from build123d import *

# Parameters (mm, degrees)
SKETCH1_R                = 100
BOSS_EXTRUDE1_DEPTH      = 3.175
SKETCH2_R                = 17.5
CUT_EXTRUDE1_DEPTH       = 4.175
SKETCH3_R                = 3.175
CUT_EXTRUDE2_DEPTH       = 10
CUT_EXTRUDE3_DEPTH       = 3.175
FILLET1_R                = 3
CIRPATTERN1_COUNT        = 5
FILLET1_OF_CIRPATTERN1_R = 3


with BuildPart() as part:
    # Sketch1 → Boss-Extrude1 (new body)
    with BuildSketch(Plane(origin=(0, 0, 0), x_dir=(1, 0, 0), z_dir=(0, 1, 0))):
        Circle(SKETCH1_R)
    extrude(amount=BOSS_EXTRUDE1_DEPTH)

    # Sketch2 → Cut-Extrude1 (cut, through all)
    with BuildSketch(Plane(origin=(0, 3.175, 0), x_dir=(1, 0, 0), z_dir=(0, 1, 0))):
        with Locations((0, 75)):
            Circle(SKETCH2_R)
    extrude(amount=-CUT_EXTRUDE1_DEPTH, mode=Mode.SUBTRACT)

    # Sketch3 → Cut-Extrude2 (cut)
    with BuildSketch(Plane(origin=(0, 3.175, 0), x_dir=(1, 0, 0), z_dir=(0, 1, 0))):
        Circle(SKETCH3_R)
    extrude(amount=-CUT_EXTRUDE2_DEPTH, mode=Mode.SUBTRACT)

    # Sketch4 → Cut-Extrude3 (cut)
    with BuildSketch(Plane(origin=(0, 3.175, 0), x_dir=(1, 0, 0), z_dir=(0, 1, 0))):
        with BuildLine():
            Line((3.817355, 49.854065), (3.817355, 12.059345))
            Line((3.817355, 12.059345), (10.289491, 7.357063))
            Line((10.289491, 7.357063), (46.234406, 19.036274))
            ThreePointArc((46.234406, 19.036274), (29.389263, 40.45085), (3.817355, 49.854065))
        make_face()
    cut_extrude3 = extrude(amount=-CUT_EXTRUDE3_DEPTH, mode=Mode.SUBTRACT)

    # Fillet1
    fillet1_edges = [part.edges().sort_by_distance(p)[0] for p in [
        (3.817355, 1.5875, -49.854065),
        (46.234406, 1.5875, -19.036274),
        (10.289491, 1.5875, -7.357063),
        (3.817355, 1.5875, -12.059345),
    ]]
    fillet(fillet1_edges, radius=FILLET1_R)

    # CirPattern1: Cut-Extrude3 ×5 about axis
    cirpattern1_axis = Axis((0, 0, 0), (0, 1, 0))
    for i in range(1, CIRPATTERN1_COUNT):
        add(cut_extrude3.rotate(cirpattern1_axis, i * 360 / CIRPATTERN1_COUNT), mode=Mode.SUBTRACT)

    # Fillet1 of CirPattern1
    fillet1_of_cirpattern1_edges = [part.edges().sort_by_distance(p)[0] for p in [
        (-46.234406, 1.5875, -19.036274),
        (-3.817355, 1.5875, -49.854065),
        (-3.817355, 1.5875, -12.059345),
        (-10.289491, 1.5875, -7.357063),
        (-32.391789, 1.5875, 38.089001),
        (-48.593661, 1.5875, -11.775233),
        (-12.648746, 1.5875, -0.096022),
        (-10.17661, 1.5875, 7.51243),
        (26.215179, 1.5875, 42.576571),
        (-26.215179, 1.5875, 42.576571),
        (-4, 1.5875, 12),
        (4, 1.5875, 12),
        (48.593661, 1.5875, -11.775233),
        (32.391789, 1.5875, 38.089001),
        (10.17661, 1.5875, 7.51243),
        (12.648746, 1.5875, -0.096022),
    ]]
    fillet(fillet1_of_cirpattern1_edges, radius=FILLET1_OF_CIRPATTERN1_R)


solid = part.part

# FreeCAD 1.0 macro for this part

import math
import FreeCAD as App
import Part
import Sketcher
Q = App.Units.Quantity


def edges_at(feature, points):
    """Names of the edges that pass closest to the given points."""
    edges = feature.Shape.Edges
    near = lambda p: min(range(len(edges)), key=lambda i: edges[i].distToShape(Part.Vertex(*p))[0])
    return sorted({f"Edge{near(p) + 1}" for p in points})

doc = App.newDocument("Part")
body = doc.addObject("PartDesign::Body", "Body")

# Sketch on XZ plane
sketch1 = body.newObject("Sketcher::SketchObject", "Sketch")
sketch1.AttachmentSupport = (doc.getObject("XZ_Plane"), [""])
sketch1.MapMode = "FlatFace"
sketch1.addGeometry(Part.Circle(App.Vector(0, 0, 0), App.Vector(0, 0, 1), 100), False)
sketch1.addConstraint(Sketcher.Constraint("Coincident", 0, 3, -1, 1))
sketch1.addConstraint(Sketcher.Constraint("Diameter", 0, Q("200 mm")))
pad1 = body.newObject("PartDesign::Pad", "Pad")
pad1.Profile = sketch1
pad1.Length = 3.175
pad1.Reversed = True

# Sketch on XZ plane
sketch2 = body.newObject("Sketcher::SketchObject", "Sketch001")
sketch2.AttachmentSupport = (doc.getObject("XZ_Plane"), [""])
sketch2.MapMode = "FlatFace"
sketch2.AttachmentOffset = App.Placement(App.Vector(0, 0, -3.175), App.Rotation())
sketch2.addGeometry(Part.Circle(App.Vector(0, -75, 0), App.Vector(0, 0, 1), 18), False)
sketch2.addConstraint(Sketcher.Constraint("PointOnObject", 0, 3, -2))
sketch2.addConstraint(Sketcher.Constraint("Diameter", 0, Q("35 mm")))
sketch2.addConstraint(Sketcher.Constraint("DistanceY", 0, 3, -1, 1, Q("75 mm")))
pocket1 = body.newObject("PartDesign::Pocket", "Pocket")
pocket1.Profile = sketch2
pocket1.Type = "ThroughAll"
pocket1.Reversed = True

# Sketch on XZ plane
sketch3 = body.newObject("Sketcher::SketchObject", "Sketch002")
sketch3.AttachmentSupport = (doc.getObject("XZ_Plane"), [""])
sketch3.MapMode = "FlatFace"
sketch3.AttachmentOffset = App.Placement(App.Vector(0, 0, -3.175), App.Rotation())
sketch3.addGeometry(Part.Circle(App.Vector(0, 0, 0), App.Vector(0, 0, 1), 3.2), False)
sketch3.addConstraint(Sketcher.Constraint("Coincident", 0, 3, -1, 1))
sketch3.addConstraint(Sketcher.Constraint("Diameter", 0, Q("6.35 mm")))
pocket2 = body.newObject("PartDesign::Pocket", "Pocket001")
pocket2.Profile = sketch3
pocket2.Length = 10
pocket2.Reversed = True

# Sketch on XZ plane
sketch4 = body.newObject("Sketcher::SketchObject", "Sketch003")
sketch4.AttachmentSupport = (doc.getObject("XZ_Plane"), [""])
sketch4.MapMode = "FlatFace"
sketch4.AttachmentOffset = App.Placement(App.Vector(0, 0, -3.175), App.Rotation())
sketch4.addGeometry(Part.LineSegment(App.Vector(4, -50, 0), App.Vector(4, -12, 0)), False)
sketch4.addGeometry(Part.LineSegment(App.Vector(4, -12, 0), App.Vector(10, -7, 0)), False)
sketch4.addGeometry(Part.LineSegment(App.Vector(10, -7, 0), App.Vector(46, -19, 0)), False)
sketch4.addGeometry(Part.ArcOfCircle(Part.Circle(App.Vector(0, 0, 0), App.Vector(0, 0, 1), 50), math.radians(-86), math.radians(-22)), False)
sketch4.addConstraint(Sketcher.Constraint("Coincident", 0, 2, 1, 1))
sketch4.addConstraint(Sketcher.Constraint("Coincident", 1, 2, 2, 1))
sketch4.addConstraint(Sketcher.Constraint("Coincident", 2, 2, 3, 2))
sketch4.addConstraint(Sketcher.Constraint("Coincident", 3, 1, 0, 1))
sketch4.addConstraint(Sketcher.Constraint("Vertical", 0))
sketch4.addConstraint(Sketcher.Constraint("Coincident", 3, 3, -1, 1))
sketch4.addConstraint(Sketcher.Constraint("Radius", 3, Q("49.999998 mm")))
sketch4.addConstraint(Sketcher.Constraint("Angle", 1, Q("36 deg")))
sketch4.addConstraint(Sketcher.Constraint("Angle", 2, Q("-18 deg")))
sketch4.addConstraint(Sketcher.Constraint("Distance", 1, Q("8 mm")))
sketch4.addConstraint(Sketcher.Constraint("DistanceY", 0, 1, 0, 2, Q("37.79472 mm")))
sketch4.addConstraint(Sketcher.Constraint("Distance", 2, Q("37.79472 mm")))
pocket3 = body.newObject("PartDesign::Pocket", "Pocket002")
pocket3.Profile = sketch4
pocket3.Length = 3.175
pocket3.Reversed = True
doc.recompute()

fillet = body.newObject("PartDesign::Fillet", "Fillet")
fillet.Base = (pocket3, edges_at(pocket3, [
    (3.817, 1.587, -49.854),
    (46.234, 1.587, -19.036),
    (10.289, 1.587, -7.357),
    (3.817, 1.587, -12.059),
]))
fillet.Radius = 3
doc.recompute()

polarpattern = body.newObject("PartDesign::PolarPattern", "PolarPattern")
polarpattern.Originals = [pocket3]
polarpattern.Axis = (doc.getObject("Y_Axis"), [""])
polarpattern.Angle = 360
polarpattern.Occurrences = 5
body.Tip = polarpattern
doc.recompute()

fillet2 = body.newObject("PartDesign::Fillet", "Fillet001")
fillet2.Base = (polarpattern, edges_at(polarpattern, [
    (-46.234, 1.587, -19.036),
    (-3.817, 1.587, -49.854),
    (-3.817, 1.587, -12.059),
    (-10.289, 1.587, -7.357),
    (-32.392, 1.587, 38.089),
    (-48.594, 1.587, -11.775),
    (-12.649, 1.587, -0.096),
    (-10.177, 1.587, 7.512),
    (26.215, 1.587, 42.577),
    (-26.215, 1.587, 42.577),
    (-4, 1.587, 12),
    (4, 1.587, 12),
    (48.594, 1.587, -11.775),
    (32.392, 1.587, 38.089),
    (10.177, 1.587, 7.512),
    (12.649, 1.587, -0.096),
]))
fillet2.Radius = 3

doc.recompute()
